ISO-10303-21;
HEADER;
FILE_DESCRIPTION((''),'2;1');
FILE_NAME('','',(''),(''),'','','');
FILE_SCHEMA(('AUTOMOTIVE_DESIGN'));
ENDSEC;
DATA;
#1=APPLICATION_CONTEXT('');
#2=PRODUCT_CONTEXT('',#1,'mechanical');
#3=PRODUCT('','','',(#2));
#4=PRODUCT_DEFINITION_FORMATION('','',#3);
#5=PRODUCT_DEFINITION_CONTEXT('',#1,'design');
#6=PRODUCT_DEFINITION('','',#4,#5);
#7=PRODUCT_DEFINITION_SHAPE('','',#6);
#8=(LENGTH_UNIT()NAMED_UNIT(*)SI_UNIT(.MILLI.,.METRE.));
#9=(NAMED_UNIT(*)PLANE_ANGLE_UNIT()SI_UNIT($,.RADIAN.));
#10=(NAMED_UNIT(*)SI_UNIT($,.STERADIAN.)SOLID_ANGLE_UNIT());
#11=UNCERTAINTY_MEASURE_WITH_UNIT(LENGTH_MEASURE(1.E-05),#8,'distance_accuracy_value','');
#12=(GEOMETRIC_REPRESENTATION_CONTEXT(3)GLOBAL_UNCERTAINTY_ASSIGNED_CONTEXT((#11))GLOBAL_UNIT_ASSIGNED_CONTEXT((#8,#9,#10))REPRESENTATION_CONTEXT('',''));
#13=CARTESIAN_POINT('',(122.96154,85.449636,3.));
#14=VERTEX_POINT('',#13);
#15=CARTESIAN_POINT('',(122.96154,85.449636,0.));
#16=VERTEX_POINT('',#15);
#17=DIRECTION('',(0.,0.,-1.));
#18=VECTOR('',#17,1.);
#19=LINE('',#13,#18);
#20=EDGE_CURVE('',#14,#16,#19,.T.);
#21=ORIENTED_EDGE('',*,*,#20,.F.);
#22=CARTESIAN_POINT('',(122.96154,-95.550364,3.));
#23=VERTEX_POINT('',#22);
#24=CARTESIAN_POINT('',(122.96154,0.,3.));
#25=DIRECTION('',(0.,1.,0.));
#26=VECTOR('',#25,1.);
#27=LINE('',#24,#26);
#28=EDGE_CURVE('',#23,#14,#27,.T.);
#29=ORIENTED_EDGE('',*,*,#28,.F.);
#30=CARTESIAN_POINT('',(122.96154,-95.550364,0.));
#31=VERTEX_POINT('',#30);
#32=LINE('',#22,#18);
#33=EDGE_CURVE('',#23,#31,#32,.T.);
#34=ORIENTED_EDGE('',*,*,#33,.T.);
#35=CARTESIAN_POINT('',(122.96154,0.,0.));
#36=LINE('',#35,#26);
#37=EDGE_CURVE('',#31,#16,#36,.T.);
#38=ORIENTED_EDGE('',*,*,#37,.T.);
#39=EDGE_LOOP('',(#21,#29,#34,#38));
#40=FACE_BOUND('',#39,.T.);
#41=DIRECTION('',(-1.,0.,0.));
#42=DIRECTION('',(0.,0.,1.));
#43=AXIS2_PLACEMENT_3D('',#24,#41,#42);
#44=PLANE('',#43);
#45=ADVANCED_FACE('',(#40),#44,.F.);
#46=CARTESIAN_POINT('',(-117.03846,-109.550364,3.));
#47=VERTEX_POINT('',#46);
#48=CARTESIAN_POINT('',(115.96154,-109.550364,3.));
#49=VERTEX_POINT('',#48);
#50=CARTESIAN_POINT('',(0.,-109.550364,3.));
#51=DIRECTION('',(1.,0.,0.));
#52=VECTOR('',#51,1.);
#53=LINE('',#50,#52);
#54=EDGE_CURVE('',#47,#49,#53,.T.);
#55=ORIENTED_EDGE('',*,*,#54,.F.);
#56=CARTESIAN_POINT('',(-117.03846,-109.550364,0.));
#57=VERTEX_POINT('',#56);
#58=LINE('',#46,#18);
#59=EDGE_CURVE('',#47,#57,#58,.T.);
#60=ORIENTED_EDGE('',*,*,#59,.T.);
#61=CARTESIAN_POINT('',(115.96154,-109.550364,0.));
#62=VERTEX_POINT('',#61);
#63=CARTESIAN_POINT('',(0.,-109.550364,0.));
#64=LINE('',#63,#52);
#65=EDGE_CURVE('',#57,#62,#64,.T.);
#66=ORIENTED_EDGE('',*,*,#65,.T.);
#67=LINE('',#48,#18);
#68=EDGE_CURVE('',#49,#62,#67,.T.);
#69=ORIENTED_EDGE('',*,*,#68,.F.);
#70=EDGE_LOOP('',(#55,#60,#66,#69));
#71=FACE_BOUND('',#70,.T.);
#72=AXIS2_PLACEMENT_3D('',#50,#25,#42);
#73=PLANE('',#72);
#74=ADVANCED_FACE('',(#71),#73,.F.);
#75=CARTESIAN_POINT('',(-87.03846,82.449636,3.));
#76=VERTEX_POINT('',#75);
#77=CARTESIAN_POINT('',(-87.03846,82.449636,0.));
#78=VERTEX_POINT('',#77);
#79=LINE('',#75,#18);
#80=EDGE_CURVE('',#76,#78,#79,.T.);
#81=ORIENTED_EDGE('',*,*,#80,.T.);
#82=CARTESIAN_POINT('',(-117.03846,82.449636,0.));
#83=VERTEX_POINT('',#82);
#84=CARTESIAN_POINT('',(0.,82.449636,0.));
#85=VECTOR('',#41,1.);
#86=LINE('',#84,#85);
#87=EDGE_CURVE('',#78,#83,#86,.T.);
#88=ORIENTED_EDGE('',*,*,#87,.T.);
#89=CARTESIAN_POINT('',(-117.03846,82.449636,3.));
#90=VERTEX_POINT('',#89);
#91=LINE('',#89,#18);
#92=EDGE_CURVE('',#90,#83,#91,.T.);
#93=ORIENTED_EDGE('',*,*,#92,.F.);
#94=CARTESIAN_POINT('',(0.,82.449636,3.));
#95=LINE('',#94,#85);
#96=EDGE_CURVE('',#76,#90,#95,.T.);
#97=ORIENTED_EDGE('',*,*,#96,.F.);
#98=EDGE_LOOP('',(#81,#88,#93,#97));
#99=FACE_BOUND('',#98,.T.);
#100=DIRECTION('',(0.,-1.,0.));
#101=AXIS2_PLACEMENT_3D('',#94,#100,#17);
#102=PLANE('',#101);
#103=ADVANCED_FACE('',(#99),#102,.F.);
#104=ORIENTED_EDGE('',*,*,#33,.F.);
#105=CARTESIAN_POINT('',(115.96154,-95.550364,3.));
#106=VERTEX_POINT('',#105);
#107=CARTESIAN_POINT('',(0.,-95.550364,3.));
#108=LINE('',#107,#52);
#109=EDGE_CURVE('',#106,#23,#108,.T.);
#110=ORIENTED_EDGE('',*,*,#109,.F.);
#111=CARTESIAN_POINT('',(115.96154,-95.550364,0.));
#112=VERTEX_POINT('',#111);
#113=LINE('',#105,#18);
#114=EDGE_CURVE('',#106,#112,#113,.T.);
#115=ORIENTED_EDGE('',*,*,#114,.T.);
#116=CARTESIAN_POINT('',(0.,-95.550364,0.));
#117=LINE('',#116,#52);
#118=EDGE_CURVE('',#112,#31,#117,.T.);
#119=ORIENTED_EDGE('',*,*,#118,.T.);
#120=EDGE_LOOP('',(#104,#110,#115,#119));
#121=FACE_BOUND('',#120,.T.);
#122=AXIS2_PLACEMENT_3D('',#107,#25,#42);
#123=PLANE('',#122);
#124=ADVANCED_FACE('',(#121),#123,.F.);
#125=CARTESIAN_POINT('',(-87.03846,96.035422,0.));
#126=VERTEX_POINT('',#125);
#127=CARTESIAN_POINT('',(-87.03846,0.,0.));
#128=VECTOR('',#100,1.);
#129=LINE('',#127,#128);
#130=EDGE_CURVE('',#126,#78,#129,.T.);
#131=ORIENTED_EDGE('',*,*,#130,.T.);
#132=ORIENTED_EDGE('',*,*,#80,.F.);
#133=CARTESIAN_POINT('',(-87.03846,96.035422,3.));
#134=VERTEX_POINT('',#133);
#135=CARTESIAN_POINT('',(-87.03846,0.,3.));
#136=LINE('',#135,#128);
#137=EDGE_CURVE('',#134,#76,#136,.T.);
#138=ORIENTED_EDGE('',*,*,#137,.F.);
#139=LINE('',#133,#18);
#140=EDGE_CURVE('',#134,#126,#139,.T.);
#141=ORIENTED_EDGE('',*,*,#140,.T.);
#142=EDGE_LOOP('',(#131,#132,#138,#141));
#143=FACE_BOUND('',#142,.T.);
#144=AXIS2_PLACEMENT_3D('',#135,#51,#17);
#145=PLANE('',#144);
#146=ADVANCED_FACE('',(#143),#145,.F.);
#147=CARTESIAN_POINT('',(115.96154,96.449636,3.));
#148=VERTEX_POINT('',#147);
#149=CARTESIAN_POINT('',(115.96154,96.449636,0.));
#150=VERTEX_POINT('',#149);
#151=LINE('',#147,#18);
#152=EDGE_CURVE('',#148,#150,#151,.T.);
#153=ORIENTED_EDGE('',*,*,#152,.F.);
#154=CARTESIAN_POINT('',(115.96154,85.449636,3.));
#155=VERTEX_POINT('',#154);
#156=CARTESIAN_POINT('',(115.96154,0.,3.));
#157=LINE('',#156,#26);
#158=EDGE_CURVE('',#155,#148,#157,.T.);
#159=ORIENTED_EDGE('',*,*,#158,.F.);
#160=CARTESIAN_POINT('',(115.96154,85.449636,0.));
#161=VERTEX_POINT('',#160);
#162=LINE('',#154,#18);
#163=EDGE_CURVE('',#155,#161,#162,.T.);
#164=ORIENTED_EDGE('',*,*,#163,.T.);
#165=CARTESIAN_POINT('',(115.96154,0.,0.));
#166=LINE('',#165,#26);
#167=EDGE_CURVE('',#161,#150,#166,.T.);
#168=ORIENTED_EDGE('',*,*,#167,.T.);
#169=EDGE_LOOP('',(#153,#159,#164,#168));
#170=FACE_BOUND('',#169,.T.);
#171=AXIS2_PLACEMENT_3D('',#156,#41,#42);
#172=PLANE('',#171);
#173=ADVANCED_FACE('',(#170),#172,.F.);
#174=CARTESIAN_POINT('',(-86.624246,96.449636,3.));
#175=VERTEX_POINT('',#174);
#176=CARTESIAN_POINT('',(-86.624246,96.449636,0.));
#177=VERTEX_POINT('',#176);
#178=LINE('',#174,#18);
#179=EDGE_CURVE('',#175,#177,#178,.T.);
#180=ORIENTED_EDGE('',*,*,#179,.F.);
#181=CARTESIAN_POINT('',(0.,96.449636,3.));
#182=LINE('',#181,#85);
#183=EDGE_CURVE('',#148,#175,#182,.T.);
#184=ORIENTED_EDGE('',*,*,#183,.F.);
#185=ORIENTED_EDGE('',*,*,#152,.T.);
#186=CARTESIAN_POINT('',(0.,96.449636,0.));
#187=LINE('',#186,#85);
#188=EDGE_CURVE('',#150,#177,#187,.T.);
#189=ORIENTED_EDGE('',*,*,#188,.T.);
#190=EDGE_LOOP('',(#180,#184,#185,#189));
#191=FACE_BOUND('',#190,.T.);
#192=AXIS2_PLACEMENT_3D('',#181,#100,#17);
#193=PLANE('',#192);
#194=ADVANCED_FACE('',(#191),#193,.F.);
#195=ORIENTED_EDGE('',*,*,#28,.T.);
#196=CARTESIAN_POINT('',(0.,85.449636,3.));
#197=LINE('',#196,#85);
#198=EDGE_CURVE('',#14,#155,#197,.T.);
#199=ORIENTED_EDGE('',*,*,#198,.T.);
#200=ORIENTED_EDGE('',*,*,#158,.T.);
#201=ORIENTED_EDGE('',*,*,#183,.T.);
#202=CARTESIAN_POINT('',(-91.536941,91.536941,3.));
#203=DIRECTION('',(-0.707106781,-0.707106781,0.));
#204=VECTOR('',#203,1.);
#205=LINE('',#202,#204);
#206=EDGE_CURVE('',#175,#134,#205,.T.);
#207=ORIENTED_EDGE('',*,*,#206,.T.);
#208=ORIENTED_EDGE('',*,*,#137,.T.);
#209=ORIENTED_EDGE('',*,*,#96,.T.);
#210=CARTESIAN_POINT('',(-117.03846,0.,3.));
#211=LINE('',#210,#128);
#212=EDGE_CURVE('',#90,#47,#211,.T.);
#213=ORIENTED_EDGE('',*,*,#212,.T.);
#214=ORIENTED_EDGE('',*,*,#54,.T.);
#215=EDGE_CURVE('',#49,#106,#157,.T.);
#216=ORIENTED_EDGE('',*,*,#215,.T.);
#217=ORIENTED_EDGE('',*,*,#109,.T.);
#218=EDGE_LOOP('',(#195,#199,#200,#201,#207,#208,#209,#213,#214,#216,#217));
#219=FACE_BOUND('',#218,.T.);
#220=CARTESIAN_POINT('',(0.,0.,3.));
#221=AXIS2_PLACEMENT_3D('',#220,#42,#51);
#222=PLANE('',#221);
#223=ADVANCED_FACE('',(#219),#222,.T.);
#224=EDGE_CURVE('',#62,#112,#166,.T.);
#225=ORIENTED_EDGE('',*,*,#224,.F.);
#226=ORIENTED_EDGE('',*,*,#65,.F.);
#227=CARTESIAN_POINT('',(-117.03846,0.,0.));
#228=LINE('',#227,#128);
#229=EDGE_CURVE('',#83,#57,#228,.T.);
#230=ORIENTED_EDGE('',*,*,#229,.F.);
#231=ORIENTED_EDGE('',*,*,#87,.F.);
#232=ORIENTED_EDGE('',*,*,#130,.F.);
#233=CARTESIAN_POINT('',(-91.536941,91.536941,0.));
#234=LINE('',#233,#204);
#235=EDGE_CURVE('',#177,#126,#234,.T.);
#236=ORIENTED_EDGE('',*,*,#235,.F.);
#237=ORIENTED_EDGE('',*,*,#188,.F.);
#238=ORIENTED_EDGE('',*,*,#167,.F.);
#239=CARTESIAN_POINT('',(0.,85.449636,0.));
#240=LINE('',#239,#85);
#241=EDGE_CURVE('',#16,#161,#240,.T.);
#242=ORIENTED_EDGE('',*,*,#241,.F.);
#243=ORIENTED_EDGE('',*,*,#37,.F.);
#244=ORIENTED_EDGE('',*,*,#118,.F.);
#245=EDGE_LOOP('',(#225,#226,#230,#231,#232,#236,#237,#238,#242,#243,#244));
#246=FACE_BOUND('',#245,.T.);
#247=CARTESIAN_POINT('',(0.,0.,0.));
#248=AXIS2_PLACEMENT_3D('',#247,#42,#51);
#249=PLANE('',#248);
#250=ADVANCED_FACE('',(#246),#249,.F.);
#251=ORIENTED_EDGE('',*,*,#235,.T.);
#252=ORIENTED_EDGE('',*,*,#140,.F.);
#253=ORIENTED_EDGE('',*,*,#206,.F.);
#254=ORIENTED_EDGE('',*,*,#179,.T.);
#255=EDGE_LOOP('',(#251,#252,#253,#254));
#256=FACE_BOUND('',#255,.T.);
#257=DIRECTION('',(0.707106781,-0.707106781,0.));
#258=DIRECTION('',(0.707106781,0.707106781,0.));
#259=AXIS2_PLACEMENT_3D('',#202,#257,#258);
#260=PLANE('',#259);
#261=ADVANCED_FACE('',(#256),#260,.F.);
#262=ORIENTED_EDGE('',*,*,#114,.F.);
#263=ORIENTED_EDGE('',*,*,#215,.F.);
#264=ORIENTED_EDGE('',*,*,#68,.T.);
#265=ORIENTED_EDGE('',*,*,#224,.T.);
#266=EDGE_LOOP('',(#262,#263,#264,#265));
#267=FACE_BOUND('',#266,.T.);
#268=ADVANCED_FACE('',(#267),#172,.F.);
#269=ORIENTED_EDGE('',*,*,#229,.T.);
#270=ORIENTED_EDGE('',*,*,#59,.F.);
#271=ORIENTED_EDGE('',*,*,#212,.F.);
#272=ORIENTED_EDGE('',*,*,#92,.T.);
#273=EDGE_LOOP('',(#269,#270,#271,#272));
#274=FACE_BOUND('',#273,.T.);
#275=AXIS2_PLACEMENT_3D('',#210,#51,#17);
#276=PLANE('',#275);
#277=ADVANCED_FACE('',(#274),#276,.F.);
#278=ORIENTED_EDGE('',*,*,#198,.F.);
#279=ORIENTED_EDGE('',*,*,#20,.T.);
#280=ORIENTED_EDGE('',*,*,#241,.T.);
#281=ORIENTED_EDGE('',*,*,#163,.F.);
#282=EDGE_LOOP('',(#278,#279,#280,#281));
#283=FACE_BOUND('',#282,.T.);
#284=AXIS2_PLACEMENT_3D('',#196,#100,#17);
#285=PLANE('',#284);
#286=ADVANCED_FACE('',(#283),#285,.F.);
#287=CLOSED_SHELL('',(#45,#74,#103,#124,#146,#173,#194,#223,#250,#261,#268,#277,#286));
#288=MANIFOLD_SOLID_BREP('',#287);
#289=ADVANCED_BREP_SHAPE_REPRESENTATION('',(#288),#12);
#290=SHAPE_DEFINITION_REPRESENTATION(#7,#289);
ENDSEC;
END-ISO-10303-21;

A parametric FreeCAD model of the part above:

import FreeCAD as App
import Part
import Sketcher

V = App.Vector
Q = App.Units.Quantity


def add_polygon(sketch, points):
    """Adds a closed chain of lines whose ends are joined by coincident constraints."""
    first, n = sketch.GeometryCount, len(points)
    for a, b in zip(points, points[1:] + points[:1]):
        sketch.addGeometry(Part.LineSegment(App.Vector(*a, 0), App.Vector(*b, 0)), False)
    for i in range(n):
        sketch.addConstraint(Sketcher.Constraint("Coincident", first + i, 2, first + (i + 1) % n, 1))

doc = App.newDocument("Part")
body = doc.addObject("PartDesign::Body", "Body")

# Sketch on XY plane
sketch1 = body.newObject("Sketcher::SketchObject", "Sketch")
sketch1.AttachmentSupport = (doc.getObject("XY_Plane"), [""])
sketch1.MapMode = "FlatFace"
add_polygon(sketch1, [(-87, 82.4), (-117, 82.4), (-117, -109.6), (116, -109.6), (116, -95.6), (123, -95.6), (123, 85.4), (116, 85.4), (116, 96.4), (-86.6, 96.4), (-87, 96)])  # lines 0-10
sketch1.addConstraint(Sketcher.Constraint("Horizontal", 0))
sketch1.addConstraint(Sketcher.Constraint("Vertical", 1))
sketch1.addConstraint(Sketcher.Constraint("Horizontal", 2))
sketch1.addConstraint(Sketcher.Constraint("Vertical", 3))
sketch1.addConstraint(Sketcher.Constraint("Horizontal", 4))
sketch1.addConstraint(Sketcher.Constraint("Vertical", 5))
sketch1.addConstraint(Sketcher.Constraint("Horizontal", 6))
sketch1.addConstraint(Sketcher.Constraint("Vertical", 7))
sketch1.addConstraint(Sketcher.Constraint("Horizontal", 8))
sketch1.addConstraint(Sketcher.Constraint("Vertical", 10))
sketch1.addConstraint(Sketcher.Constraint("Vertical", 3, 2, 6, 2))
sketch1.addConstraint(Sketcher.Constraint("DistanceX", 0, 2, 0, 1, 30.0))
sketch1.addConstraint(Sketcher.Constraint("DistanceX", 2, 1, 2, 2, 233.0))
sketch1.addConstraint(Sketcher.Constraint("DistanceX", 4, 1, 4, 2, 7.0))
sketch1.addConstraint(Sketcher.Constraint("DistanceY", 1, 2, 1, 1, 192.0))
sketch1.addConstraint(Sketcher.Constraint("DistanceY", 3, 1, 3, 2, 14.0))
sketch1.addConstraint(Sketcher.Constraint("DistanceY", 5, 1, 5, 2, 181.0))
sketch1.addConstraint(Sketcher.Constraint("DistanceY", 7, 1, 7, 2, 11.0))
sketch1.addConstraint(Sketcher.Constraint("Angle", 9, Q("-135 deg")))
sketch1.addConstraint(Sketcher.Constraint("DistanceX", 8, 2, 8, 1, 202.585786))
sketch1.addConstraint(Sketcher.Constraint("DistanceX", 0, 2, -1, 1, 117.03846))
sketch1.addConstraint(Sketcher.Constraint("DistanceY", -1, 1, 0, 2, 82.449636))
pad1 = body.newObject("PartDesign::Pad", "Pad")
pad1.Profile = sketch1
pad1.Length = 3

doc.recompute()
